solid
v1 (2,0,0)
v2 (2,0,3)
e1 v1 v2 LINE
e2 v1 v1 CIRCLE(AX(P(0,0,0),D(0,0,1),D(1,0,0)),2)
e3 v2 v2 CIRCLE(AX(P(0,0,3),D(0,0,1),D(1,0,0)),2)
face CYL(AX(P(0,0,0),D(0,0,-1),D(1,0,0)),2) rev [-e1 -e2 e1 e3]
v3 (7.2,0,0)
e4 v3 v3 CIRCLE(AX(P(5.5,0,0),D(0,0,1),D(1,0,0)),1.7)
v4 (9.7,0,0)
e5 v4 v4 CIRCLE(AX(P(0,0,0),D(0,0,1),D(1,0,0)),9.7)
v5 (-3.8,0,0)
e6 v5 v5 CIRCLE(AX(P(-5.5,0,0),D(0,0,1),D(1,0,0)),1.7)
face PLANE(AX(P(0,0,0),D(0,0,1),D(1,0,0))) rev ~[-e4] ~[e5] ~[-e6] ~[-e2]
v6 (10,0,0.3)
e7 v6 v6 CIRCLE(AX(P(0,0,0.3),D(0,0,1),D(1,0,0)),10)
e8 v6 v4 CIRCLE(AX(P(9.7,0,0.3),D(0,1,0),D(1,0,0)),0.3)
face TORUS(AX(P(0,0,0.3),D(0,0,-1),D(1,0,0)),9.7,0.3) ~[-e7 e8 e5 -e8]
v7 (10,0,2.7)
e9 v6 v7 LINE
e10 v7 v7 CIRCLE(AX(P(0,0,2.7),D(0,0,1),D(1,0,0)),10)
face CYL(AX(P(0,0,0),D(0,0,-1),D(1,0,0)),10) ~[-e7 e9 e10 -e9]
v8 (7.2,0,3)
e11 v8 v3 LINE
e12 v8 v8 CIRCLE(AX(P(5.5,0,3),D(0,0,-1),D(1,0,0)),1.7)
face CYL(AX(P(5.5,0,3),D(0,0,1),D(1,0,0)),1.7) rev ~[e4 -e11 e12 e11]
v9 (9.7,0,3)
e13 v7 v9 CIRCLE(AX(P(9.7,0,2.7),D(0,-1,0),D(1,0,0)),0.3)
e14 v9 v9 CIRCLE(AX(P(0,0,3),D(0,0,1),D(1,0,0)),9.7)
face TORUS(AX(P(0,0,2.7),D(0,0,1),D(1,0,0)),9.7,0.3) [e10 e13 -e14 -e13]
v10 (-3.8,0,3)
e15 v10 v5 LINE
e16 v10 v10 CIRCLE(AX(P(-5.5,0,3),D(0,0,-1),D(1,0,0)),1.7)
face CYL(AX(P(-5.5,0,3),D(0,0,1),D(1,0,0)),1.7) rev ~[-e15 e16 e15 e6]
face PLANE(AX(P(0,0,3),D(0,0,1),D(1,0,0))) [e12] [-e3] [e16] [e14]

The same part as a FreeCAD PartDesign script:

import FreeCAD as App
import Part
import Sketcher
Q = App.Units.Quantity


def edges_at(feature, points):
    """Names of the edges that pass closest to the given points."""
    edges = feature.Shape.Edges
    near = lambda p: min(range(len(edges)), key=lambda i: edges[i].distToShape(Part.Vertex(*p))[0])
    return sorted({f"Edge{near(p) + 1}" for p in points})

doc = App.newDocument("Part")
body = doc.addObject("PartDesign::Body", "Body")

sketch1 = body.newObject("Sketcher::SketchObject", "Sketch")
sketch1.AttachmentSupport = (doc.getObject("XY_Plane"), [""])
sketch1.MapMode = "FlatFace"
sketch1.addGeometry([
    Part.Circle(App.Vector(0, 0, 0), App.Vector(0, 0, 1), 10),
    Part.Circle(App.Vector(0, 0, 0), App.Vector(0, 0, 1), 2),
], False)
sketch1.addConstraint([
    Sketcher.Constraint("Coincident", 0, 3, -1, 1),
    Sketcher.Constraint("Coincident", 1, 3, -1, 1),
    Sketcher.Constraint("Diameter", 0, Q("20 mm")),
    Sketcher.Constraint("Diameter", 1, Q("4 mm")),
])
pad1 = body.newObject("PartDesign::Pad", "Pad")
pad1.Profile = sketch1
pad1.Length = 3

sketch2 = body.newObject("Sketcher::SketchObject", "Sketch001")
sketch2.AttachmentSupport = (doc.getObject("XY_Plane"), [""])
sketch2.MapMode = "FlatFace"
sketch2.AttachmentOffset = App.Placement(App.Vector(0, 0, 3), App.Rotation())
sketch2.addGeometry([
    Part.Circle(App.Vector(5.5, 0, 0), App.Vector(0, 0, 1), 1.7),
    Part.Circle(App.Vector(-5.5, 0, 0), App.Vector(0, 0, 1), 1.7),
], False)
sketch2.addConstraint([
    Sketcher.Constraint("Equal", 0, 1),
    Sketcher.Constraint("Symmetric", 0, 3, 1, 3, -1, 1),
    Sketcher.Constraint("PointOnObject", 0, 3, -1),
    Sketcher.Constraint("Diameter", 0, Q("3.4 mm")),
    Sketcher.Constraint("DistanceX", 1, 3, 0, 3, Q("11 mm")),
])
pocket1 = body.newObject("PartDesign::Pocket", "Pocket")
pocket1.Profile = sketch2
pocket1.Length = 3
doc.recompute()

fillet = body.newObject("PartDesign::Fillet", "Fillet")
fillet.Base = (pocket1, edges_at(pocket1, [(-10, 0, 3), (-10, 0, 0)]))
fillet.Radius = 0.3

doc.recompute()
